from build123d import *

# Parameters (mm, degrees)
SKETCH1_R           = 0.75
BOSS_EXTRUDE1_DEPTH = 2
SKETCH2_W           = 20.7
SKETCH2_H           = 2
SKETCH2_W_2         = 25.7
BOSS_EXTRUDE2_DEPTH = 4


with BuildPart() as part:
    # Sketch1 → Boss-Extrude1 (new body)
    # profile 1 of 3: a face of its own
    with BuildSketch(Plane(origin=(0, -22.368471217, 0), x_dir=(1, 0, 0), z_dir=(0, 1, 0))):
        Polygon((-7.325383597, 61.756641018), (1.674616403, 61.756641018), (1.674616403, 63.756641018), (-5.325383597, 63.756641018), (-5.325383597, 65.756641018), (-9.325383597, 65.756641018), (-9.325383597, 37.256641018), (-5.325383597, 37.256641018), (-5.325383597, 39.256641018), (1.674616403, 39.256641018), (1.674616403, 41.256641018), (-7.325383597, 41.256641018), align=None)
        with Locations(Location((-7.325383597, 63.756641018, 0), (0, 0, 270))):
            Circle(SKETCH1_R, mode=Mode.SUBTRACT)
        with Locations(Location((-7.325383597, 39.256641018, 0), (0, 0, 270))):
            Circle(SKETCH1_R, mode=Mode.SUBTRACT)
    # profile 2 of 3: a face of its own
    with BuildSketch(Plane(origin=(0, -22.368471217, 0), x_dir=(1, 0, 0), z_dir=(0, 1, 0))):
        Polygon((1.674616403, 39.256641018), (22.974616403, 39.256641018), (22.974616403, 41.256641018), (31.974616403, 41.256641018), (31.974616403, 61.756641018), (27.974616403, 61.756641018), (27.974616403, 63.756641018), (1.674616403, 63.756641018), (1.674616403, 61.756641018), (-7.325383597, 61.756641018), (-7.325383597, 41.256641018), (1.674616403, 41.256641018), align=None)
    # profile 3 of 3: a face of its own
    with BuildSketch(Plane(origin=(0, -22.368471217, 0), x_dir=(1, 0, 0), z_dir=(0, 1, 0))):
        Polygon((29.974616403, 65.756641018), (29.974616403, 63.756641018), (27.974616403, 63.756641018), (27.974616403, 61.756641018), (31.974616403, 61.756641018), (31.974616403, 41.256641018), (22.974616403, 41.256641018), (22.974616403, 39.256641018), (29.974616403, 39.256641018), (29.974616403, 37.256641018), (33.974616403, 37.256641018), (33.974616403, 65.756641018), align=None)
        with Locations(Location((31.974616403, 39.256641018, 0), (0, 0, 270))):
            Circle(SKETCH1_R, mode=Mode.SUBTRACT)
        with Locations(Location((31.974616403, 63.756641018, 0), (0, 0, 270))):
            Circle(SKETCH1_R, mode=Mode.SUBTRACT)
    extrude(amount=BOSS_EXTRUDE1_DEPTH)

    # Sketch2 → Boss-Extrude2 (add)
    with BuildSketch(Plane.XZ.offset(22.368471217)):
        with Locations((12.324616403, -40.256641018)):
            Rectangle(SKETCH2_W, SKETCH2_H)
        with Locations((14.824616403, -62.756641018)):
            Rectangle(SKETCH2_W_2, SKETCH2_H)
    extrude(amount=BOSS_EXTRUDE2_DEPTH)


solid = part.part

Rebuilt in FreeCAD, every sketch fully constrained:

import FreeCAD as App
import Part
import Sketcher

doc = App.newDocument("Part")
params = doc.addObject("Spreadsheet::Sheet", "Params")
for row, (alias, value) in enumerate([
    ("sketch1_diameter", "1.5 mm"),
    ("sketch1_width", "4 mm"),
    ("sketch1_height", "2 mm"),
    ("sketch1_width2", "35.3 mm"),
    ("sketch1_height2", "28.5 mm"),
    ("pad1_length", "2 mm"),
    ("sketch2_height", "2 mm"),
    ("sketch2_width", "20.7 mm"),
    ("sketch2_width2", "25.7 mm"),
    ("pad2_length", "4 mm"),
], start=1):
    params.set(f"A{row}", alias)
    params.set(f"B{row}", "=" + value)
    params.setAlias(f"B{row}", alias)

body = doc.addObject("PartDesign::Body", "Body")

# Sketch on XZ plane
sketch1 = body.newObject("Sketcher::SketchObject", "Sketch")
sketch1.AttachmentSupport = (doc.getObject("XZ_Plane"), [""])
sketch1.MapMode = "FlatFace"
sketch1.AttachmentOffset = App.Placement(App.Vector(0, 0, 22.368471), App.Rotation())
sketch1.addGeometry(Part.LineSegment(App.Vector(-5.325384, -63.756641, 0), App.Vector(-5.325384, -65.756641, 0)), False)
sketch1.addGeometry(Part.LineSegment(App.Vector(-5.325384, -65.756641, 0), App.Vector(-9.325384, -65.756641, 0)), False)
sketch1.addGeometry(Part.LineSegment(App.Vector(-9.325384, -65.756641, 0), App.Vector(-9.325384, -37.256641, 0)), False)
sketch1.addGeometry(Part.LineSegment(App.Vector(-9.325384, -37.256641, 0), App.Vector(-5.325384, -37.256641, 0)), False)
sketch1.addGeometry(Part.LineSegment(App.Vector(-5.325384, -37.256641, 0), App.Vector(-5.325384, -39.256641, 0)), False)
sketch1.addGeometry(Part.LineSegment(App.Vector(-5.325384, -39.256641, 0), App.Vector(29.974616, -39.256641, 0)), False)
sketch1.addGeometry(Part.LineSegment(App.Vector(29.974616, -39.256641, 0), App.Vector(29.974616, -37.256641, 0)), False)
sketch1.addGeometry(Part.LineSegment(App.Vector(29.974616, -37.256641, 0), App.Vector(33.974616, -37.256641, 0)), False)
sketch1.addGeometry(Part.LineSegment(App.Vector(33.974616, -37.256641, 0), App.Vector(33.974616, -65.756641, 0)), False)
sketch1.addGeometry(Part.LineSegment(App.Vector(33.974616, -65.756641, 0), App.Vector(29.974616, -65.756641, 0)), False)
sketch1.addGeometry(Part.LineSegment(App.Vector(29.974616, -65.756641, 0), App.Vector(29.974616, -63.756641, 0)), False)
sketch1.addGeometry(Part.LineSegment(App.Vector(29.974616, -63.756641, 0), App.Vector(-5.325384, -63.756641, 0)), False)
sketch1.addGeometry(Part.Circle(App.Vector(-7.325384, -39.256641, 0), App.Vector(0, 0, 1), 0.75), False)
sketch1.addGeometry(Part.Circle(App.Vector(-7.325384, -63.756641, 0), App.Vector(0, 0, 1), 0.75), False)
sketch1.addGeometry(Part.Circle(App.Vector(31.974616, -39.256641, 0), App.Vector(0, 0, 1), 0.75), False)
sketch1.addGeometry(Part.Circle(App.Vector(31.974616, -63.756641, 0), App.Vector(0, 0, 1), 0.75), False)
sketch1.addConstraint(Sketcher.Constraint("Coincident", 0, 2, 1, 1))
sketch1.addConstraint(Sketcher.Constraint("Coincident", 1, 2, 2, 1))
sketch1.addConstraint(Sketcher.Constraint("Coincident", 2, 2, 3, 1))
sketch1.addConstraint(Sketcher.Constraint("Coincident", 3, 2, 4, 1))
sketch1.addConstraint(Sketcher.Constraint("Coincident", 4, 2, 5, 1))
sketch1.addConstraint(Sketcher.Constraint("Coincident", 5, 2, 6, 1))
sketch1.addConstraint(Sketcher.Constraint("Coincident", 6, 2, 7, 1))
sketch1.addConstraint(Sketcher.Constraint("Coincident", 7, 2, 8, 1))
sketch1.addConstraint(Sketcher.Constraint("Coincident", 8, 2, 9, 1))
sketch1.addConstraint(Sketcher.Constraint("Coincident", 9, 2, 10, 1))
sketch1.addConstraint(Sketcher.Constraint("Coincident", 10, 2, 11, 1))
sketch1.addConstraint(Sketcher.Constraint("Coincident", 11, 2, 0, 1))
sketch1.addConstraint(Sketcher.Constraint("Vertical", 0))
sketch1.addConstraint(Sketcher.Constraint("Horizontal", 1))
sketch1.addConstraint(Sketcher.Constraint("Vertical", 2))
sketch1.addConstraint(Sketcher.Constraint("Horizontal", 3))
sketch1.addConstraint(Sketcher.Constraint("Vertical", 4))
sketch1.addConstraint(Sketcher.Constraint("Horizontal", 5))
sketch1.addConstraint(Sketcher.Constraint("Vertical", 6))
sketch1.addConstraint(Sketcher.Constraint("Horizontal", 7))
sketch1.addConstraint(Sketcher.Constraint("Vertical", 8))
sketch1.addConstraint(Sketcher.Constraint("Horizontal", 9))
sketch1.addConstraint(Sketcher.Constraint("Vertical", 10))
sketch1.addConstraint(Sketcher.Constraint("Horizontal", 11))
sketch1.addConstraint(Sketcher.Constraint("Equal", 12, 13))
sketch1.addConstraint(Sketcher.Constraint("Equal", 13, 14))
sketch1.addConstraint(Sketcher.Constraint("Equal", 14, 15))
sketch1.addConstraint(Sketcher.Constraint("Horizontal", 12, 3, 14, 3))
sketch1.addConstraint(Sketcher.Constraint("Horizontal", 13, 3, 15, 3))
sketch1.addConstraint(Sketcher.Constraint("Horizontal", 14, 3, 4, 2))
sketch1.addConstraint(Sketcher.Constraint("Horizontal", 3, 2, 6, 2))
sketch1.addConstraint(Sketcher.Constraint("Horizontal", 1, 2, 8, 2))
sketch1.addConstraint(Sketcher.Constraint("Horizontal", 15, 3, 10, 2))
sketch1.addConstraint(Sketcher.Constraint("Vertical", 12, 3, 13, 3))
sketch1.addConstraint(Sketcher.Constraint("Vertical", 14, 3, 15, 3))
sketch1.addConstraint(Sketcher.Constraint("Vertical", 0, 2, 3, 2))
sketch1.addConstraint(Sketcher.Constraint("Vertical", 6, 2, 9, 2))
sketch1.addConstraint(Sketcher.Constraint("Equal", 3, 7))
sketch1.addConstraint(Sketcher.Constraint("Equal", 0, 4))
sketch1.addConstraint(Sketcher.Constraint("Diameter", 12, 1.5))
sketch1.addConstraint(Sketcher.Constraint("DistanceX", 1, 2, 1, 1, 4.0))
sketch1.addConstraint(Sketcher.Constraint("DistanceY", 0, 2, 0, 1, 2.0))
sketch1.addConstraint(Sketcher.Constraint("DistanceX", 5, 1, 5, 2, 35.3))
sketch1.addConstraint(Sketcher.Constraint("DistanceY", 2, 1, 2, 2, 28.5))
sketch1.addConstraint(Sketcher.Constraint("DistanceX", 13, 3, 0, 2, 2.0))
sketch1.addConstraint(Sketcher.Constraint("DistanceX", 5, 2, 14, 3, 2.0))
sketch1.addConstraint(Sketcher.Constraint("DistanceY", 12, 3, -1, 1, 39.256641))
sketch1.addConstraint(Sketcher.Constraint("DistanceX", 12, 3, -1, 1, 7.325384))
sketch1.setExpression("Constraints[39]", "Params.sketch1_diameter")
sketch1.setExpression("Constraints[40]", "Params.sketch1_width")
sketch1.setExpression("Constraints[41]", "Params.sketch1_height")
sketch1.setExpression("Constraints[42]", "Params.sketch1_width2")
sketch1.setExpression("Constraints[43]", "Params.sketch1_height2")
pad1 = body.newObject("PartDesign::Pad", "Pad")
pad1.Profile = sketch1
pad1.setExpression("Length", "Params.pad1_length")
pad1.Reversed = True

# Sketch on XZ plane
sketch2 = body.newObject("Sketcher::SketchObject", "Sketch001")
sketch2.AttachmentSupport = (doc.getObject("XZ_Plane"), [""])
sketch2.MapMode = "FlatFace"
sketch2.AttachmentOffset = App.Placement(App.Vector(0, 0, 22.368471), App.Rotation())
sketch2.addGeometry(Part.LineSegment(App.Vector(1.974616, -39.256641, 0), App.Vector(1.974616, -41.256641, 0)), False)
sketch2.addGeometry(Part.LineSegment(App.Vector(1.974616, -41.256641, 0), App.Vector(22.674616, -41.256641, 0)), False)
sketch2.addGeometry(Part.LineSegment(App.Vector(22.674616, -41.256641, 0), App.Vector(22.674616, -39.256641, 0)), False)
sketch2.addGeometry(Part.LineSegment(App.Vector(22.674616, -39.256641, 0), App.Vector(1.974616, -39.256641, 0)), False)
sketch2.addGeometry(Part.LineSegment(App.Vector(1.974616, -61.756641, 0), App.Vector(1.974616, -63.756641, 0)), False)
sketch2.addGeometry(Part.LineSegment(App.Vector(1.974616, -63.756641, 0), App.Vector(27.674616, -63.756641, 0)), False)
sketch2.addGeometry(Part.LineSegment(App.Vector(27.674616, -63.756641, 0), App.Vector(27.674616, -61.756641, 0)), False)
sketch2.addGeometry(Part.LineSegment(App.Vector(27.674616, -61.756641, 0), App.Vector(1.974616, -61.756641, 0)), False)
sketch2.addConstraint(Sketcher.Constraint("Coincident", 0, 2, 1, 1))
sketch2.addConstraint(Sketcher.Constraint("Coincident", 1, 2, 2, 1))
sketch2.addConstraint(Sketcher.Constraint("Coincident", 2, 2, 3, 1))
sketch2.addConstraint(Sketcher.Constraint("Coincident", 3, 2, 0, 1))
sketch2.addConstraint(Sketcher.Constraint("Coincident", 4, 2, 5, 1))
sketch2.addConstraint(Sketcher.Constraint("Coincident", 5, 2, 6, 1))
sketch2.addConstraint(Sketcher.Constraint("Coincident", 6, 2, 7, 1))
sketch2.addConstraint(Sketcher.Constraint("Coincident", 7, 2, 4, 1))
sketch2.addConstraint(Sketcher.Constraint("Vertical", 0))
sketch2.addConstraint(Sketcher.Constraint("Horizontal", 1))
sketch2.addConstraint(Sketcher.Constraint("Vertical", 2))
sketch2.addConstraint(Sketcher.Constraint("Horizontal", 3))
sketch2.addConstraint(Sketcher.Constraint("Vertical", 4))
sketch2.addConstraint(Sketcher.Constraint("Horizontal", 5))
sketch2.addConstraint(Sketcher.Constraint("Vertical", 6))
sketch2.addConstraint(Sketcher.Constraint("Horizontal", 7))
sketch2.addConstraint(Sketcher.Constraint("Vertical", 3, 2, 4, 2))
sketch2.addConstraint(Sketcher.Constraint("Equal", 2, 4))
sketch2.addConstraint(Sketcher.Constraint("DistanceY", 0, 2, 0, 1, 2.0))
sketch2.addConstraint(Sketcher.Constraint("DistanceX", 1, 1, 1, 2, 20.7))
sketch2.addConstraint(Sketcher.Constraint("DistanceX", 5, 1, 5, 2, 25.7))
sketch2.addConstraint(Sketcher.Constraint("DistanceY", 4, 2, 0, 2, 22.5))
sketch2.addConstraint(Sketcher.Constraint("DistanceY", 0, 2, -1, 1, 41.256641))
sketch2.addConstraint(Sketcher.Constraint("DistanceX", -1, 1, 0, 2, 1.974616))
sketch2.setExpression("Constraints[18]", "Params.sketch2_height")
sketch2.setExpression("Constraints[19]", "Params.sketch2_width")
sketch2.setExpression("Constraints[20]", "Params.sketch2_width2")
pad2 = body.newObject("PartDesign::Pad", "Pad001")
pad2.Profile = sketch2
pad2.setExpression("Length", "Params.pad2_length")

doc.recompute()
